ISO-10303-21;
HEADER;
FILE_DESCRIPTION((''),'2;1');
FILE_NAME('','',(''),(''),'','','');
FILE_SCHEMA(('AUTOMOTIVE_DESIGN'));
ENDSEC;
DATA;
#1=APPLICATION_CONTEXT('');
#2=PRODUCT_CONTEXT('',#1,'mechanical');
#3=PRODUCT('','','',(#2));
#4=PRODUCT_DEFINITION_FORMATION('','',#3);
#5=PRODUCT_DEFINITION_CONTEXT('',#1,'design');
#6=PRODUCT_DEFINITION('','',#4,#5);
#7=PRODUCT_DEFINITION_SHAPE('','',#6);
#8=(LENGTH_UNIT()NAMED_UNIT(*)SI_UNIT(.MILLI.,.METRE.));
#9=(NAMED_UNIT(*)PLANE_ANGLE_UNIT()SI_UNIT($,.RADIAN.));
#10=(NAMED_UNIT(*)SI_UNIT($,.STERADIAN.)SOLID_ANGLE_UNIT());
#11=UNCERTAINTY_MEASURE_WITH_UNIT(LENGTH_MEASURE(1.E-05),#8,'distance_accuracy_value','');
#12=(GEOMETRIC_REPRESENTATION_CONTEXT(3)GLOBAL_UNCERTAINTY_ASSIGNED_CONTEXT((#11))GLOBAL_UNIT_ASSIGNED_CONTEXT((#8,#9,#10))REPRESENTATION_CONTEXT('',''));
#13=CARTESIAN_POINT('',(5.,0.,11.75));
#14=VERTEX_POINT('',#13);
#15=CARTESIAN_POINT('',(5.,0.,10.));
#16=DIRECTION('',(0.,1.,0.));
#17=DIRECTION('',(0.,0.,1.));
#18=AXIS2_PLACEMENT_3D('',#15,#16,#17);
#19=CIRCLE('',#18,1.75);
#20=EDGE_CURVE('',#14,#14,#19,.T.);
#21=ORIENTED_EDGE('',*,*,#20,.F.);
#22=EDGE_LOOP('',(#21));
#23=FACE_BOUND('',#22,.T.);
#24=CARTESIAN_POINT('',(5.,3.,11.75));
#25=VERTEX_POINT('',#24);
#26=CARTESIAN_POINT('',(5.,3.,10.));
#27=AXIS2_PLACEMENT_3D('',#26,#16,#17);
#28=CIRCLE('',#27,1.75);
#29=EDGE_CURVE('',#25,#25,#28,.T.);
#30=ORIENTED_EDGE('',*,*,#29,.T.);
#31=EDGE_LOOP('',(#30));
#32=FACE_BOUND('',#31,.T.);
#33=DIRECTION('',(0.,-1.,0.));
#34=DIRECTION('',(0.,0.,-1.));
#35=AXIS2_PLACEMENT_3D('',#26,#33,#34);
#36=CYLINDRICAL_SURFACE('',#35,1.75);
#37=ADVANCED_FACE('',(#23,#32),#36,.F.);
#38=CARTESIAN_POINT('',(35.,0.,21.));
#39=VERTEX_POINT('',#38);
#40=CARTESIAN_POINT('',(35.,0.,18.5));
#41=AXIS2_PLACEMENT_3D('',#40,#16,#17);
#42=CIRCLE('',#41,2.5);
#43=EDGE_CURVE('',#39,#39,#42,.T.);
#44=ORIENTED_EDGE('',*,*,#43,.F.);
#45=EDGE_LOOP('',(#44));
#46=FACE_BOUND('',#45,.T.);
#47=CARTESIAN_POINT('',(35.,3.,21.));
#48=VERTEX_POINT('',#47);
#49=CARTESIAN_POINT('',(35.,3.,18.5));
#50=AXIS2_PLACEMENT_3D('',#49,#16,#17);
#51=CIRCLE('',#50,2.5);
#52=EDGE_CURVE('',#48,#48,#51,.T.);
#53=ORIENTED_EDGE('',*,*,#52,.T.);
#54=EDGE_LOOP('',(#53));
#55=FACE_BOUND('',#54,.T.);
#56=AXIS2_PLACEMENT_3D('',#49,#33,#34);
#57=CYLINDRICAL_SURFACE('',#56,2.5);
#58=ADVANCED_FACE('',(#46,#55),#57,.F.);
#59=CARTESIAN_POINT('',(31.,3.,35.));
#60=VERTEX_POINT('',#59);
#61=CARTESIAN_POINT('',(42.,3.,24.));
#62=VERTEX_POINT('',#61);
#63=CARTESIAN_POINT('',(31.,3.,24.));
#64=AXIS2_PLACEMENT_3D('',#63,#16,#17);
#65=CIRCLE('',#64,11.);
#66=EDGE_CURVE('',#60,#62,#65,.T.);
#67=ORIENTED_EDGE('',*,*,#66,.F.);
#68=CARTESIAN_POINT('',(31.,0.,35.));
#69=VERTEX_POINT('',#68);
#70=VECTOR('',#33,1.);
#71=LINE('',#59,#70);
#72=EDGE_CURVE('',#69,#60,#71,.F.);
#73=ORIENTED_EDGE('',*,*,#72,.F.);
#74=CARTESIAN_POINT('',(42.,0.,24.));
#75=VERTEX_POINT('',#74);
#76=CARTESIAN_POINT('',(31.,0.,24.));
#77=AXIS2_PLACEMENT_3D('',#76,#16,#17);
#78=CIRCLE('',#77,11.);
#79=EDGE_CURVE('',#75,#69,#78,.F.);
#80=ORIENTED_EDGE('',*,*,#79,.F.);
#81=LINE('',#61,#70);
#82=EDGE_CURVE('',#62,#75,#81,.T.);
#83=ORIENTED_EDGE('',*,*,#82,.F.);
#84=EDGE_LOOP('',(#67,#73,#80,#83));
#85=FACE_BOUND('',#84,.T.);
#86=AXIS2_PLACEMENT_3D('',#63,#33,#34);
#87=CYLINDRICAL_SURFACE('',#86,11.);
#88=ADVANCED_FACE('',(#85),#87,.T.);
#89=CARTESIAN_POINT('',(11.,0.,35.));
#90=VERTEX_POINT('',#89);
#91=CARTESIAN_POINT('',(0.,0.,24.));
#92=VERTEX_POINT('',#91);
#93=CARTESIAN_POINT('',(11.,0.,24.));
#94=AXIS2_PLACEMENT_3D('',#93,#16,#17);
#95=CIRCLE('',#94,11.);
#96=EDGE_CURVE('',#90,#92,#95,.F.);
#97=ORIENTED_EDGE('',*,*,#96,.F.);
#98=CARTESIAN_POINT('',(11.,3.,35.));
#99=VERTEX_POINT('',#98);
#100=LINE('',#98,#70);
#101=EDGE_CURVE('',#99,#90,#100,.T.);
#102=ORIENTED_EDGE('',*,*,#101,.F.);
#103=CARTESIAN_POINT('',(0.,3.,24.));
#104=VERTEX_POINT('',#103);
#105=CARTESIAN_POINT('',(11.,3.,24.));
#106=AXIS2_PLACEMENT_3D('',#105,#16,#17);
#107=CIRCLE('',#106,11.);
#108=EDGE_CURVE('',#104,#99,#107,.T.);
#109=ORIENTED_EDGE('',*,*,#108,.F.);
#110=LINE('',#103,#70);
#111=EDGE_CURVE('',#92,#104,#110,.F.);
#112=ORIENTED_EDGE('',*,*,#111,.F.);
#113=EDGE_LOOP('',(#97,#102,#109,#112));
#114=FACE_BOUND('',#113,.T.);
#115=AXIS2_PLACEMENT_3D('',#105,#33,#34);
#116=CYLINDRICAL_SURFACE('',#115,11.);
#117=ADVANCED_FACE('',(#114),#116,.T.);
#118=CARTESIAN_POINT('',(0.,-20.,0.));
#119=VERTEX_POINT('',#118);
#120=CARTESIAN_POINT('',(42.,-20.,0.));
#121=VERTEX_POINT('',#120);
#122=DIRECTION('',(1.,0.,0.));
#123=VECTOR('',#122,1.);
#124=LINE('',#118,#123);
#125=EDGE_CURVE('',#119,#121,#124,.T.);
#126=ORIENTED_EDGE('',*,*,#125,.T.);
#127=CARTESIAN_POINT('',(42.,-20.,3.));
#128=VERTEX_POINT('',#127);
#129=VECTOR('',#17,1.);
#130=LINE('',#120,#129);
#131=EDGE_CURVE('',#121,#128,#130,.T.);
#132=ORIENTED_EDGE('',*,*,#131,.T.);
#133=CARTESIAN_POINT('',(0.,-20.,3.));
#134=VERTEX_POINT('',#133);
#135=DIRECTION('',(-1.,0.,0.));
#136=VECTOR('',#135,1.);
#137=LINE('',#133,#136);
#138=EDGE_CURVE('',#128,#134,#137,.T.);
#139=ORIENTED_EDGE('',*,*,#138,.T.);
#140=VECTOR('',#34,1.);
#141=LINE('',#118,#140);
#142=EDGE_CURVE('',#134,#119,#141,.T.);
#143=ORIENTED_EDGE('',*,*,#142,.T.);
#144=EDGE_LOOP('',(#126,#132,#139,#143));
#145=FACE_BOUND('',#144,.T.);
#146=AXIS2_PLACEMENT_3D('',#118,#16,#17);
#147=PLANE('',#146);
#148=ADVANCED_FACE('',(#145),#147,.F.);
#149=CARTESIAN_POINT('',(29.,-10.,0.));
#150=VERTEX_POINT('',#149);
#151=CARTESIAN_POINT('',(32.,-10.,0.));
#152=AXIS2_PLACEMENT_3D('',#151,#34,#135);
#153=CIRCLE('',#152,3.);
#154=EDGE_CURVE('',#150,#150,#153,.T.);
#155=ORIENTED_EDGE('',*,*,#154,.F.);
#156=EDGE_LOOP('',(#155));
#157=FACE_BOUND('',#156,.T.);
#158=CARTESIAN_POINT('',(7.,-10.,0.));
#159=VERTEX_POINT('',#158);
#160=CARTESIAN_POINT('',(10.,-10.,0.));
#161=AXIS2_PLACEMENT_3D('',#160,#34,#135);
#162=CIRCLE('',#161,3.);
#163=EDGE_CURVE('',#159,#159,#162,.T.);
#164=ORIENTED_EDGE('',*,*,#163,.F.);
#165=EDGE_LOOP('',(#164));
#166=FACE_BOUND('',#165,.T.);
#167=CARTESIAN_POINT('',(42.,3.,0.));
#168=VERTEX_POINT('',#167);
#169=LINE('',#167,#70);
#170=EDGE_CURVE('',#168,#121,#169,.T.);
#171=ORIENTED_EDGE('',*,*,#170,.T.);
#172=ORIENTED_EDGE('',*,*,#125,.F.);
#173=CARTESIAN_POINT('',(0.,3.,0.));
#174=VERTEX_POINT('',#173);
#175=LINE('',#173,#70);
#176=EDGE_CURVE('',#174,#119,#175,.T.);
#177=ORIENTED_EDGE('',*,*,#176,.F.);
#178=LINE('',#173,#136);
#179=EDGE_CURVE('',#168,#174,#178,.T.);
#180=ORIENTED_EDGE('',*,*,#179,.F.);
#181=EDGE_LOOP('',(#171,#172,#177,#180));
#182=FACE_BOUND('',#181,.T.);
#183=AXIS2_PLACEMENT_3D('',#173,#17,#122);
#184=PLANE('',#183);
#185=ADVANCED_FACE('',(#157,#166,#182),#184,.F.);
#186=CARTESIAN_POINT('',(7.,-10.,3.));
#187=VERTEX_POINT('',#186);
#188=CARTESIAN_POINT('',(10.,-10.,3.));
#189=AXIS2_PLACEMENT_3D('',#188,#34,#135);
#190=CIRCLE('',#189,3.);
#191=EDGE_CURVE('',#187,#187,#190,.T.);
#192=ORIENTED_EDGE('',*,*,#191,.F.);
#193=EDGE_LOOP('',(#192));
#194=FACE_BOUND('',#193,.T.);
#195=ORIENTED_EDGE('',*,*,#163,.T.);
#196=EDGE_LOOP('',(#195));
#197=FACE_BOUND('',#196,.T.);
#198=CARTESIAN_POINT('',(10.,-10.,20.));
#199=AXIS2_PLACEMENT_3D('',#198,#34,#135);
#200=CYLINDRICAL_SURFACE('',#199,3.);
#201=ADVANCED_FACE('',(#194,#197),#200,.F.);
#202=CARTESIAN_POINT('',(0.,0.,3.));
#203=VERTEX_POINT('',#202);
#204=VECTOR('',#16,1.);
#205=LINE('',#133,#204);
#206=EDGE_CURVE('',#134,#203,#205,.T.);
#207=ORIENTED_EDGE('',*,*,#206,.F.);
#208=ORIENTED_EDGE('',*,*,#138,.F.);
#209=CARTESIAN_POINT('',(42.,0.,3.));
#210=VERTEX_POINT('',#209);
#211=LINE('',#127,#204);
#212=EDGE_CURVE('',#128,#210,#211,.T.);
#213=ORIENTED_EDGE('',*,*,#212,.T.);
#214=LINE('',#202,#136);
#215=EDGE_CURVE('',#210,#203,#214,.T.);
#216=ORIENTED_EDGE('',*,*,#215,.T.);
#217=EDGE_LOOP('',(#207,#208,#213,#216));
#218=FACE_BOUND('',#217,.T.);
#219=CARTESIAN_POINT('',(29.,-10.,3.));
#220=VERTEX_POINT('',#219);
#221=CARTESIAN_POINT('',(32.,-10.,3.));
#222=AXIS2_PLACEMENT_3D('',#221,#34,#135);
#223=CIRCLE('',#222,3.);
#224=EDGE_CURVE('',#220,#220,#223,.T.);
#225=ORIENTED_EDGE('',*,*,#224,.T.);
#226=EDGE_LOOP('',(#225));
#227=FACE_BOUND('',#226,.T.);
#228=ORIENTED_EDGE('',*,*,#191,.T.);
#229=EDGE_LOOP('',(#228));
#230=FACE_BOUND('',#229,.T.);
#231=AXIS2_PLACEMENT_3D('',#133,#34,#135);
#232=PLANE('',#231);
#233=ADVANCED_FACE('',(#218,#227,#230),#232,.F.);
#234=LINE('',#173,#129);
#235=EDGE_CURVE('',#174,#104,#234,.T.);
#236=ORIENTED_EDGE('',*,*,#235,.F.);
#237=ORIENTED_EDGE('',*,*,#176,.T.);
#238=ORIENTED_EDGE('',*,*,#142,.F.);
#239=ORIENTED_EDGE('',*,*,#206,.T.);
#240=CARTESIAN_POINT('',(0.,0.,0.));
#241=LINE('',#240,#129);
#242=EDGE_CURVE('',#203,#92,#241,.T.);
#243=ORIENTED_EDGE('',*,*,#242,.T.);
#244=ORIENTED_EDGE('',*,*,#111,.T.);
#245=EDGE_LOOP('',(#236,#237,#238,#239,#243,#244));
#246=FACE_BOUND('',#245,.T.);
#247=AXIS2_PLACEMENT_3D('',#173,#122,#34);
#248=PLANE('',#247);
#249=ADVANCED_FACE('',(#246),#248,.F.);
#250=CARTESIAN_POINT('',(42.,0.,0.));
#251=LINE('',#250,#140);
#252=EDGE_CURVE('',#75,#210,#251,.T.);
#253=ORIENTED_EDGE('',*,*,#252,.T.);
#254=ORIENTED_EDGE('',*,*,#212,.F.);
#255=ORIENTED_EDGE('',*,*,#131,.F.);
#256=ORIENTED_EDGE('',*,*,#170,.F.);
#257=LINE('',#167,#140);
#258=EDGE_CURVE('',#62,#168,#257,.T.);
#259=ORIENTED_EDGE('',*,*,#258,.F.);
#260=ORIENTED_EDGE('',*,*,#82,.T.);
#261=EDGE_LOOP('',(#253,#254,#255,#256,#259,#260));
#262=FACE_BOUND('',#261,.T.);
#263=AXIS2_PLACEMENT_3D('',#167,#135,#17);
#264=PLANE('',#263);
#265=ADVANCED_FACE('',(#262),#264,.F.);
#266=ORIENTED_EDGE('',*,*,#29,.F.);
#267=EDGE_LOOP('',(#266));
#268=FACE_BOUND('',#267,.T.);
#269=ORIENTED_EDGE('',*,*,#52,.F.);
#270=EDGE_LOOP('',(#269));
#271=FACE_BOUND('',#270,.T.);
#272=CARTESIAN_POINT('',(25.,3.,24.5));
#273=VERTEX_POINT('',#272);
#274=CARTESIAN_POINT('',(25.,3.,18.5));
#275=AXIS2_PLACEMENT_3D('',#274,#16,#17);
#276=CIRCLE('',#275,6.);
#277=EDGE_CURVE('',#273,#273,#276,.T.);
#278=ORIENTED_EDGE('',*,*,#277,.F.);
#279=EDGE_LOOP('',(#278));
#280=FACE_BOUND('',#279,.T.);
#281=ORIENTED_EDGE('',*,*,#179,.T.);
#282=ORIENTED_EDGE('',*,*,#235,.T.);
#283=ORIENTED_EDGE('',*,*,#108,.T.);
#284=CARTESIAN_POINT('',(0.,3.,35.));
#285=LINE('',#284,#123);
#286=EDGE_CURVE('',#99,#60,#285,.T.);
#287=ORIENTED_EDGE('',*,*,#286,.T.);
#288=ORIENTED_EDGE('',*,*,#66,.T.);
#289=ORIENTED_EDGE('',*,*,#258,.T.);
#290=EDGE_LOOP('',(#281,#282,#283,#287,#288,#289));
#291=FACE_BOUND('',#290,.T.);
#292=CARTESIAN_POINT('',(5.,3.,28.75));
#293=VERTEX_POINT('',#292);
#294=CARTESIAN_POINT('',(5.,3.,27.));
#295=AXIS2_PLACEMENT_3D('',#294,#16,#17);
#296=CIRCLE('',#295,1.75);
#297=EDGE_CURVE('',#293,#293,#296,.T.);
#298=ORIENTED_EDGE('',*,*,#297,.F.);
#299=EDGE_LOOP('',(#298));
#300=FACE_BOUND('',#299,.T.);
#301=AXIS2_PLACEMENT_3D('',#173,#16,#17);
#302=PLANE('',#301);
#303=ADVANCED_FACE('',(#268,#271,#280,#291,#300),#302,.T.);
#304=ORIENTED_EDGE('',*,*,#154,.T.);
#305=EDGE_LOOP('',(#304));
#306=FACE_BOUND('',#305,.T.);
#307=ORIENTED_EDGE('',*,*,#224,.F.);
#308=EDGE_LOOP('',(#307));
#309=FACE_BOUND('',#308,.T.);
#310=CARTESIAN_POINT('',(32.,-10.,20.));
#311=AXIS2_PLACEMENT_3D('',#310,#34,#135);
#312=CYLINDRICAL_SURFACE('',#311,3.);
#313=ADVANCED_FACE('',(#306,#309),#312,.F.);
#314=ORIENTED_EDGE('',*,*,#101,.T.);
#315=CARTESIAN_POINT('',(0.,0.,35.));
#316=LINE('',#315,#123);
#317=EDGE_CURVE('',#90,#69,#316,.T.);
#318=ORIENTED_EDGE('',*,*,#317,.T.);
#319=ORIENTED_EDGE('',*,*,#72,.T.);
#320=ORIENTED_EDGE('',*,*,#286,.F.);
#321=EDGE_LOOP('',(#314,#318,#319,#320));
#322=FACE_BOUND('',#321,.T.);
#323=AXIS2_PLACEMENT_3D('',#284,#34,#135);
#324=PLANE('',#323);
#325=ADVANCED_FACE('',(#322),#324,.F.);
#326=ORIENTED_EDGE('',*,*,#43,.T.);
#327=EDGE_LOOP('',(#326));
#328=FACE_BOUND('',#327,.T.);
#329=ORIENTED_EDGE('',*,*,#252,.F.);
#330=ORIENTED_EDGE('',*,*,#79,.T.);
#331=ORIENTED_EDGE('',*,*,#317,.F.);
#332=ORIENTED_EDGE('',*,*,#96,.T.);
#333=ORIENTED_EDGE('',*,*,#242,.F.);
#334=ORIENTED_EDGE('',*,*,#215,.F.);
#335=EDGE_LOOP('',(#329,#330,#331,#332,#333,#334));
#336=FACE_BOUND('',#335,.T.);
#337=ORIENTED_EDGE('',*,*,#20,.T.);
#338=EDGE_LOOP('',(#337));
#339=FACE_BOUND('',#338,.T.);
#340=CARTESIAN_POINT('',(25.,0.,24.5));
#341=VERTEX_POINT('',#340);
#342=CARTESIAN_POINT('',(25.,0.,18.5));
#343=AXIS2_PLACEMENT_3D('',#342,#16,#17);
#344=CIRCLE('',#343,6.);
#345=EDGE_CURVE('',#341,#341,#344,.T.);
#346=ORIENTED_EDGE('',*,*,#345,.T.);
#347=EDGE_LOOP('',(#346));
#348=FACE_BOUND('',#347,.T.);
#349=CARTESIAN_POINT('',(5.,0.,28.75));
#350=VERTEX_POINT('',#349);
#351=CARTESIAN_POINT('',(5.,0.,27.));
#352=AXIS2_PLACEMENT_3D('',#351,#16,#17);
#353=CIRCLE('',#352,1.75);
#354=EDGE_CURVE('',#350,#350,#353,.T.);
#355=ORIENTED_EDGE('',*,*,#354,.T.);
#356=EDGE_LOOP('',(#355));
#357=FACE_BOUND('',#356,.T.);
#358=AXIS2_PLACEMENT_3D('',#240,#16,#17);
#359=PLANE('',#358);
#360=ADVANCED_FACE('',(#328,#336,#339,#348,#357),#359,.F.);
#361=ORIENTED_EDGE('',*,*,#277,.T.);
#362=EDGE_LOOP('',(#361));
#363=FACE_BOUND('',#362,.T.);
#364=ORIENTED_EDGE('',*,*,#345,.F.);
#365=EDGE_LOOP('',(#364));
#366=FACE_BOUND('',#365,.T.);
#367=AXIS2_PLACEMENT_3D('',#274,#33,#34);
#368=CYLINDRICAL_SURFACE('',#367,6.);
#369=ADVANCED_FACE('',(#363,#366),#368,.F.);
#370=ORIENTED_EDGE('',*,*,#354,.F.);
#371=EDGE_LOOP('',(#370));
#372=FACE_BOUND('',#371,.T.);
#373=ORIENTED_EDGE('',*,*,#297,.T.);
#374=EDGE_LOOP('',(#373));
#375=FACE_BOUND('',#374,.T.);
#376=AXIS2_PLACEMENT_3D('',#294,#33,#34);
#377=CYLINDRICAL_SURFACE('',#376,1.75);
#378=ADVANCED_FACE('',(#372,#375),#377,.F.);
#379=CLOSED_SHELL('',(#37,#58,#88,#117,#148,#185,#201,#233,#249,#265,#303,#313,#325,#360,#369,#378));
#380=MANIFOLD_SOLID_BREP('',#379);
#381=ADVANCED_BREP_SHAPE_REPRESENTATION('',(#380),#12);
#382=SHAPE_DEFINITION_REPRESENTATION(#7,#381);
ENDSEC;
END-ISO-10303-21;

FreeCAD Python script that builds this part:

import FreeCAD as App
import Part
import Sketcher
Q = App.Units.Quantity


def edges_at(feature, points):
    """Names of the edges that pass closest to the given points."""
    edges = feature.Shape.Edges
    near = lambda p: min(range(len(edges)), key=lambda i: edges[i].distToShape(Part.Vertex(*p))[0])
    return sorted({f"Edge{near(p) + 1}" for p in points})


def add_polygon(sketch, points):
    """Adds a closed chain of lines whose ends are joined by coincident constraints."""
    first, n = sketch.GeometryCount, len(points)
    for a, b in zip(points, points[1:] + points[:1]):
        sketch.addGeometry(Part.LineSegment(App.Vector(*a, 0), App.Vector(*b, 0)), False)
    for i in range(n):
        sketch.addConstraint(Sketcher.Constraint("Coincident", first + i, 2, first + (i + 1) % n, 1))

doc = App.newDocument("Part")
params = doc.addObject("Spreadsheet::Sheet", "Params")
for row, (alias, value) in enumerate([
    ("sketch1_diameter", "12 mm"),
    ("sketch1_diameter2", "5 mm"),
    ("sketch1_diameter3", "3.5 mm"),
    ("sketch1_width", "42 mm"),
    ("sketch1_height", "35 mm"),
    ("pad1_length", "3 mm"),
    ("sketch2_width", "42 mm"),
    ("sketch2_height", "3 mm"),
    ("pad2_length", "20 mm"),
    ("sketch3_diameter", "6 mm"),
    ("pocket1_length", "20 mm"),
    ("fillet_radius", "11 mm"),
], start=1):
    params.set(f"A{row}", alias)
    params.set(f"B{row}", "=" + value)
    params.setAlias(f"B{row}", alias)

body = doc.addObject("PartDesign::Body", "Body")

sketch1 = doc.addObject("Sketcher::SketchObject", "Sketch")
body.addObject(sketch1)
sketch1.AttachmentSupport = (doc.XZ_Plane, [""])
sketch1.MapMode = "FlatFace"
add_polygon(sketch1, [(0, 0), (0, 35), (42, 35), (42, 0)])
sketch1.addGeometry(Part.Circle(App.Vector(5, 27, 0), App.Vector(0, 0, 1), 1.75), False)
sketch1.addGeometry(Part.Circle(App.Vector(5, 10, 0), App.Vector(0, 0, 1), 1.75), False)
sketch1.addGeometry(Part.Circle(App.Vector(25, 18.5, 0), App.Vector(0, 0, 1), 6), False)
sketch1.addGeometry(Part.Circle(App.Vector(35, 18.5, 0), App.Vector(0, 0, 1), 2.5), False)
sketch1.addConstraint([
    Sketcher.Constraint("Vertical", 0),
    Sketcher.Constraint("Horizontal", 1),
    Sketcher.Constraint("Vertical", 2),
    Sketcher.Constraint("Horizontal", 3),
    Sketcher.Constraint("Coincident", 3, 2, -1, 1),
    Sketcher.Constraint("Equal", 4, 5),
    Sketcher.Constraint("Horizontal", 6, 3, 7, 3),
    Sketcher.Constraint("Vertical", 4, 3, 5, 3),
    Sketcher.Constraint("Diameter", 6, Q("12 mm")),
    Sketcher.Constraint("Diameter", 7, Q("5 mm")),
    Sketcher.Constraint("Diameter", 4, Q("3.5 mm")),
    Sketcher.Constraint("DistanceX", 1, 1, 1, 2, Q("42 mm")),
    Sketcher.Constraint("DistanceY", 0, 1, 0, 2, Q("35 mm")),
    Sketcher.Constraint("DistanceX", -1, 1, 4, 3, Q("5 mm")),
    Sketcher.Constraint("DistanceY", -1, 1, 4, 3, Q("27 mm")),
    Sketcher.Constraint("DistanceY", -1, 1, 5, 3, Q("10 mm")),
    Sketcher.Constraint("DistanceX", -1, 1, 6, 3, Q("25 mm")),
    Sketcher.Constraint("DistanceX", -1, 1, 7, 3, Q("35 mm")),
    Sketcher.Constraint("DistanceY", -1, 1, 6, 3, Q("18.5 mm")),
])
sketch1.setExpression("Constraints[12]", "Params.sketch1_diameter")
sketch1.setExpression("Constraints[13]", "Params.sketch1_diameter2")
sketch1.setExpression("Constraints[14]", "Params.sketch1_diameter3")
sketch1.setExpression("Constraints[15]", "Params.sketch1_width")
sketch1.setExpression("Constraints[16]", "Params.sketch1_height")
pad1 = doc.addObject("PartDesign::Pad", "Pad")
body.addObject(pad1)
pad1.Profile = sketch1
pad1.setExpression("Length", "Params.pad1_length")
pad1.Reversed = True

sketch2 = doc.addObject("Sketcher::SketchObject", "Sketch001")
body.addObject(sketch2)
sketch2.AttachmentSupport = (doc.XZ_Plane, [""])
sketch2.MapMode = "FlatFace"
add_polygon(sketch2, [(0, 3), (0, 0), (42, 0), (42, 3)])
sketch2.addConstraint([
    Sketcher.Constraint("Vertical", 0),
    Sketcher.Constraint("Horizontal", 1),
    Sketcher.Constraint("Vertical", 2),
    Sketcher.Constraint("Horizontal", 3),
    Sketcher.Constraint("Coincident", 0, 2, -1, 1),
    Sketcher.Constraint("DistanceX", 1, 1, 1, 2, Q("42 mm")),
    Sketcher.Constraint("DistanceY", 0, 2, 0, 1, Q("3 mm")),
])
sketch2.setExpression("Constraints[9]", "Params.sketch2_width")
sketch2.setExpression("Constraints[10]", "Params.sketch2_height")
pad2 = doc.addObject("PartDesign::Pad", "Pad001")
body.addObject(pad2)
pad2.Profile = sketch2
pad2.setExpression("Length", "Params.pad2_length")

sketch3 = doc.addObject("Sketcher::SketchObject", "Sketch002")
body.addObject(sketch3)
sketch3.AttachmentSupport = (doc.XY_Plane, [""])
sketch3.MapMode = "FlatFace"
sketch3.addGeometry([
    Part.Circle(App.Vector(32, -10, 0), App.Vector(0, 0, 1), 3),
    Part.Circle(App.Vector(10, -10, 0), App.Vector(0, 0, 1), 3),
], False)
sketch3.addConstraint([
    Sketcher.Constraint("Equal", 0, 1),
    Sketcher.Constraint("Horizontal", 0, 3, 1, 3),
    Sketcher.Constraint("Diameter", 0, Q("6 mm")),
    Sketcher.Constraint("DistanceX", -1, 1, 0, 3, Q("32 mm")),
    Sketcher.Constraint("DistanceY", 0, 3, -1, 1, Q("10 mm")),
    Sketcher.Constraint("DistanceX", -1, 1, 1, 3, Q("10 mm")),
])
sketch3.setExpression("Constraints[2]", "Params.sketch3_diameter")
pocket1 = doc.addObject("PartDesign::Pocket", "Pocket")
body.addObject(pocket1)
pocket1.Profile = sketch3
pocket1.setExpression("Length", "Params.pocket1_length")
pocket1.Reversed = True
doc.recompute()

fillet = doc.addObject("PartDesign::Fillet", "Fillet")
body.addObject(fillet)
fillet.Base = (pocket1, edges_at(pocket1, [(42, 1.5, 35), (0, 1.5, 35)]))
fillet.setExpression("Radius", "Params.fillet_radius")

doc.recompute()
